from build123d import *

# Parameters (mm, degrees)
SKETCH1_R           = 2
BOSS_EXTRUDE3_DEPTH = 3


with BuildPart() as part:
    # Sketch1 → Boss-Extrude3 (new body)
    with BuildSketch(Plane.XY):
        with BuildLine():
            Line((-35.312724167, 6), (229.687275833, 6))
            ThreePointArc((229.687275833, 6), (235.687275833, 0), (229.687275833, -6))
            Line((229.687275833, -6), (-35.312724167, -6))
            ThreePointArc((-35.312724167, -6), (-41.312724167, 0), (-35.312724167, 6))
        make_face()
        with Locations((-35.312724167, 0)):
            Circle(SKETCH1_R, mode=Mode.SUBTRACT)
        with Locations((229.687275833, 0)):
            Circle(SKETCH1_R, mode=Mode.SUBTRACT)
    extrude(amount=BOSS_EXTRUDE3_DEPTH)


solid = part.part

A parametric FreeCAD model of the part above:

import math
import FreeCAD as App
import Part
import Sketcher
Q = App.Units.Quantity

doc = App.newDocument("Part")
body = doc.addObject("PartDesign::Body", "Body")

sketch1 = body.newObject("Sketcher::SketchObject", "Sketch")
sketch1.AttachmentSupport = (doc.getObject("XY_Plane"), [""])
sketch1.MapMode = "FlatFace"
sketch1.addGeometry([
    Part.LineSegment(App.Vector(229.7, 6, 0), App.Vector(-35.3, 6, 0)),
    Part.ArcOfCircle(Part.Circle(App.Vector(-35.3, 0, 0), App.Vector(0, 0, 1), 6), math.radians(90), math.radians(270)),
    Part.LineSegment(App.Vector(-35.3, -6, 0), App.Vector(229.7, -6, 0)),
    Part.ArcOfCircle(Part.Circle(App.Vector(229.7, 0, 0), App.Vector(0, 0, 1), 6), math.radians(-90), math.radians(90)),
    Part.Circle(App.Vector(229.7, 0, 0), App.Vector(0, 0, 1), 2),
    Part.Circle(App.Vector(-35.3, 0, 0), App.Vector(0, 0, 1), 2),
], False)
sketch1.addConstraint([
    Sketcher.Constraint("Tangent", 0, 2, 1, 1),
    Sketcher.Constraint("Tangent", 1, 2, 2, 1),
    Sketcher.Constraint("Tangent", 2, 2, 3, 1),
    Sketcher.Constraint("Tangent", 3, 2, 0, 1),
    Sketcher.Constraint("Horizontal", 0),
    Sketcher.Constraint("Horizontal", 2),
    Sketcher.Constraint("Coincident", 4, 3, 3, 3),
    Sketcher.Constraint("Coincident", 5, 3, 1, 3),
    Sketcher.Constraint("Equal", 4, 5),
    Sketcher.Constraint("PointOnObject", 1, 3, -1),
    Sketcher.Constraint("Diameter", 4, Q("4 mm")),
    Sketcher.Constraint("Radius", 1, Q("6 mm")),
    Sketcher.Constraint("DistanceX", 0, 2, 0, 1, Q("265 mm")),
    Sketcher.Constraint("DistanceX", 1, 3, -1, 1, Q("35.312724 mm")),
])
pad1 = body.newObject("PartDesign::Pad", "Pad")
pad1.Profile = sketch1
pad1.Length = 3

doc.recompute()
